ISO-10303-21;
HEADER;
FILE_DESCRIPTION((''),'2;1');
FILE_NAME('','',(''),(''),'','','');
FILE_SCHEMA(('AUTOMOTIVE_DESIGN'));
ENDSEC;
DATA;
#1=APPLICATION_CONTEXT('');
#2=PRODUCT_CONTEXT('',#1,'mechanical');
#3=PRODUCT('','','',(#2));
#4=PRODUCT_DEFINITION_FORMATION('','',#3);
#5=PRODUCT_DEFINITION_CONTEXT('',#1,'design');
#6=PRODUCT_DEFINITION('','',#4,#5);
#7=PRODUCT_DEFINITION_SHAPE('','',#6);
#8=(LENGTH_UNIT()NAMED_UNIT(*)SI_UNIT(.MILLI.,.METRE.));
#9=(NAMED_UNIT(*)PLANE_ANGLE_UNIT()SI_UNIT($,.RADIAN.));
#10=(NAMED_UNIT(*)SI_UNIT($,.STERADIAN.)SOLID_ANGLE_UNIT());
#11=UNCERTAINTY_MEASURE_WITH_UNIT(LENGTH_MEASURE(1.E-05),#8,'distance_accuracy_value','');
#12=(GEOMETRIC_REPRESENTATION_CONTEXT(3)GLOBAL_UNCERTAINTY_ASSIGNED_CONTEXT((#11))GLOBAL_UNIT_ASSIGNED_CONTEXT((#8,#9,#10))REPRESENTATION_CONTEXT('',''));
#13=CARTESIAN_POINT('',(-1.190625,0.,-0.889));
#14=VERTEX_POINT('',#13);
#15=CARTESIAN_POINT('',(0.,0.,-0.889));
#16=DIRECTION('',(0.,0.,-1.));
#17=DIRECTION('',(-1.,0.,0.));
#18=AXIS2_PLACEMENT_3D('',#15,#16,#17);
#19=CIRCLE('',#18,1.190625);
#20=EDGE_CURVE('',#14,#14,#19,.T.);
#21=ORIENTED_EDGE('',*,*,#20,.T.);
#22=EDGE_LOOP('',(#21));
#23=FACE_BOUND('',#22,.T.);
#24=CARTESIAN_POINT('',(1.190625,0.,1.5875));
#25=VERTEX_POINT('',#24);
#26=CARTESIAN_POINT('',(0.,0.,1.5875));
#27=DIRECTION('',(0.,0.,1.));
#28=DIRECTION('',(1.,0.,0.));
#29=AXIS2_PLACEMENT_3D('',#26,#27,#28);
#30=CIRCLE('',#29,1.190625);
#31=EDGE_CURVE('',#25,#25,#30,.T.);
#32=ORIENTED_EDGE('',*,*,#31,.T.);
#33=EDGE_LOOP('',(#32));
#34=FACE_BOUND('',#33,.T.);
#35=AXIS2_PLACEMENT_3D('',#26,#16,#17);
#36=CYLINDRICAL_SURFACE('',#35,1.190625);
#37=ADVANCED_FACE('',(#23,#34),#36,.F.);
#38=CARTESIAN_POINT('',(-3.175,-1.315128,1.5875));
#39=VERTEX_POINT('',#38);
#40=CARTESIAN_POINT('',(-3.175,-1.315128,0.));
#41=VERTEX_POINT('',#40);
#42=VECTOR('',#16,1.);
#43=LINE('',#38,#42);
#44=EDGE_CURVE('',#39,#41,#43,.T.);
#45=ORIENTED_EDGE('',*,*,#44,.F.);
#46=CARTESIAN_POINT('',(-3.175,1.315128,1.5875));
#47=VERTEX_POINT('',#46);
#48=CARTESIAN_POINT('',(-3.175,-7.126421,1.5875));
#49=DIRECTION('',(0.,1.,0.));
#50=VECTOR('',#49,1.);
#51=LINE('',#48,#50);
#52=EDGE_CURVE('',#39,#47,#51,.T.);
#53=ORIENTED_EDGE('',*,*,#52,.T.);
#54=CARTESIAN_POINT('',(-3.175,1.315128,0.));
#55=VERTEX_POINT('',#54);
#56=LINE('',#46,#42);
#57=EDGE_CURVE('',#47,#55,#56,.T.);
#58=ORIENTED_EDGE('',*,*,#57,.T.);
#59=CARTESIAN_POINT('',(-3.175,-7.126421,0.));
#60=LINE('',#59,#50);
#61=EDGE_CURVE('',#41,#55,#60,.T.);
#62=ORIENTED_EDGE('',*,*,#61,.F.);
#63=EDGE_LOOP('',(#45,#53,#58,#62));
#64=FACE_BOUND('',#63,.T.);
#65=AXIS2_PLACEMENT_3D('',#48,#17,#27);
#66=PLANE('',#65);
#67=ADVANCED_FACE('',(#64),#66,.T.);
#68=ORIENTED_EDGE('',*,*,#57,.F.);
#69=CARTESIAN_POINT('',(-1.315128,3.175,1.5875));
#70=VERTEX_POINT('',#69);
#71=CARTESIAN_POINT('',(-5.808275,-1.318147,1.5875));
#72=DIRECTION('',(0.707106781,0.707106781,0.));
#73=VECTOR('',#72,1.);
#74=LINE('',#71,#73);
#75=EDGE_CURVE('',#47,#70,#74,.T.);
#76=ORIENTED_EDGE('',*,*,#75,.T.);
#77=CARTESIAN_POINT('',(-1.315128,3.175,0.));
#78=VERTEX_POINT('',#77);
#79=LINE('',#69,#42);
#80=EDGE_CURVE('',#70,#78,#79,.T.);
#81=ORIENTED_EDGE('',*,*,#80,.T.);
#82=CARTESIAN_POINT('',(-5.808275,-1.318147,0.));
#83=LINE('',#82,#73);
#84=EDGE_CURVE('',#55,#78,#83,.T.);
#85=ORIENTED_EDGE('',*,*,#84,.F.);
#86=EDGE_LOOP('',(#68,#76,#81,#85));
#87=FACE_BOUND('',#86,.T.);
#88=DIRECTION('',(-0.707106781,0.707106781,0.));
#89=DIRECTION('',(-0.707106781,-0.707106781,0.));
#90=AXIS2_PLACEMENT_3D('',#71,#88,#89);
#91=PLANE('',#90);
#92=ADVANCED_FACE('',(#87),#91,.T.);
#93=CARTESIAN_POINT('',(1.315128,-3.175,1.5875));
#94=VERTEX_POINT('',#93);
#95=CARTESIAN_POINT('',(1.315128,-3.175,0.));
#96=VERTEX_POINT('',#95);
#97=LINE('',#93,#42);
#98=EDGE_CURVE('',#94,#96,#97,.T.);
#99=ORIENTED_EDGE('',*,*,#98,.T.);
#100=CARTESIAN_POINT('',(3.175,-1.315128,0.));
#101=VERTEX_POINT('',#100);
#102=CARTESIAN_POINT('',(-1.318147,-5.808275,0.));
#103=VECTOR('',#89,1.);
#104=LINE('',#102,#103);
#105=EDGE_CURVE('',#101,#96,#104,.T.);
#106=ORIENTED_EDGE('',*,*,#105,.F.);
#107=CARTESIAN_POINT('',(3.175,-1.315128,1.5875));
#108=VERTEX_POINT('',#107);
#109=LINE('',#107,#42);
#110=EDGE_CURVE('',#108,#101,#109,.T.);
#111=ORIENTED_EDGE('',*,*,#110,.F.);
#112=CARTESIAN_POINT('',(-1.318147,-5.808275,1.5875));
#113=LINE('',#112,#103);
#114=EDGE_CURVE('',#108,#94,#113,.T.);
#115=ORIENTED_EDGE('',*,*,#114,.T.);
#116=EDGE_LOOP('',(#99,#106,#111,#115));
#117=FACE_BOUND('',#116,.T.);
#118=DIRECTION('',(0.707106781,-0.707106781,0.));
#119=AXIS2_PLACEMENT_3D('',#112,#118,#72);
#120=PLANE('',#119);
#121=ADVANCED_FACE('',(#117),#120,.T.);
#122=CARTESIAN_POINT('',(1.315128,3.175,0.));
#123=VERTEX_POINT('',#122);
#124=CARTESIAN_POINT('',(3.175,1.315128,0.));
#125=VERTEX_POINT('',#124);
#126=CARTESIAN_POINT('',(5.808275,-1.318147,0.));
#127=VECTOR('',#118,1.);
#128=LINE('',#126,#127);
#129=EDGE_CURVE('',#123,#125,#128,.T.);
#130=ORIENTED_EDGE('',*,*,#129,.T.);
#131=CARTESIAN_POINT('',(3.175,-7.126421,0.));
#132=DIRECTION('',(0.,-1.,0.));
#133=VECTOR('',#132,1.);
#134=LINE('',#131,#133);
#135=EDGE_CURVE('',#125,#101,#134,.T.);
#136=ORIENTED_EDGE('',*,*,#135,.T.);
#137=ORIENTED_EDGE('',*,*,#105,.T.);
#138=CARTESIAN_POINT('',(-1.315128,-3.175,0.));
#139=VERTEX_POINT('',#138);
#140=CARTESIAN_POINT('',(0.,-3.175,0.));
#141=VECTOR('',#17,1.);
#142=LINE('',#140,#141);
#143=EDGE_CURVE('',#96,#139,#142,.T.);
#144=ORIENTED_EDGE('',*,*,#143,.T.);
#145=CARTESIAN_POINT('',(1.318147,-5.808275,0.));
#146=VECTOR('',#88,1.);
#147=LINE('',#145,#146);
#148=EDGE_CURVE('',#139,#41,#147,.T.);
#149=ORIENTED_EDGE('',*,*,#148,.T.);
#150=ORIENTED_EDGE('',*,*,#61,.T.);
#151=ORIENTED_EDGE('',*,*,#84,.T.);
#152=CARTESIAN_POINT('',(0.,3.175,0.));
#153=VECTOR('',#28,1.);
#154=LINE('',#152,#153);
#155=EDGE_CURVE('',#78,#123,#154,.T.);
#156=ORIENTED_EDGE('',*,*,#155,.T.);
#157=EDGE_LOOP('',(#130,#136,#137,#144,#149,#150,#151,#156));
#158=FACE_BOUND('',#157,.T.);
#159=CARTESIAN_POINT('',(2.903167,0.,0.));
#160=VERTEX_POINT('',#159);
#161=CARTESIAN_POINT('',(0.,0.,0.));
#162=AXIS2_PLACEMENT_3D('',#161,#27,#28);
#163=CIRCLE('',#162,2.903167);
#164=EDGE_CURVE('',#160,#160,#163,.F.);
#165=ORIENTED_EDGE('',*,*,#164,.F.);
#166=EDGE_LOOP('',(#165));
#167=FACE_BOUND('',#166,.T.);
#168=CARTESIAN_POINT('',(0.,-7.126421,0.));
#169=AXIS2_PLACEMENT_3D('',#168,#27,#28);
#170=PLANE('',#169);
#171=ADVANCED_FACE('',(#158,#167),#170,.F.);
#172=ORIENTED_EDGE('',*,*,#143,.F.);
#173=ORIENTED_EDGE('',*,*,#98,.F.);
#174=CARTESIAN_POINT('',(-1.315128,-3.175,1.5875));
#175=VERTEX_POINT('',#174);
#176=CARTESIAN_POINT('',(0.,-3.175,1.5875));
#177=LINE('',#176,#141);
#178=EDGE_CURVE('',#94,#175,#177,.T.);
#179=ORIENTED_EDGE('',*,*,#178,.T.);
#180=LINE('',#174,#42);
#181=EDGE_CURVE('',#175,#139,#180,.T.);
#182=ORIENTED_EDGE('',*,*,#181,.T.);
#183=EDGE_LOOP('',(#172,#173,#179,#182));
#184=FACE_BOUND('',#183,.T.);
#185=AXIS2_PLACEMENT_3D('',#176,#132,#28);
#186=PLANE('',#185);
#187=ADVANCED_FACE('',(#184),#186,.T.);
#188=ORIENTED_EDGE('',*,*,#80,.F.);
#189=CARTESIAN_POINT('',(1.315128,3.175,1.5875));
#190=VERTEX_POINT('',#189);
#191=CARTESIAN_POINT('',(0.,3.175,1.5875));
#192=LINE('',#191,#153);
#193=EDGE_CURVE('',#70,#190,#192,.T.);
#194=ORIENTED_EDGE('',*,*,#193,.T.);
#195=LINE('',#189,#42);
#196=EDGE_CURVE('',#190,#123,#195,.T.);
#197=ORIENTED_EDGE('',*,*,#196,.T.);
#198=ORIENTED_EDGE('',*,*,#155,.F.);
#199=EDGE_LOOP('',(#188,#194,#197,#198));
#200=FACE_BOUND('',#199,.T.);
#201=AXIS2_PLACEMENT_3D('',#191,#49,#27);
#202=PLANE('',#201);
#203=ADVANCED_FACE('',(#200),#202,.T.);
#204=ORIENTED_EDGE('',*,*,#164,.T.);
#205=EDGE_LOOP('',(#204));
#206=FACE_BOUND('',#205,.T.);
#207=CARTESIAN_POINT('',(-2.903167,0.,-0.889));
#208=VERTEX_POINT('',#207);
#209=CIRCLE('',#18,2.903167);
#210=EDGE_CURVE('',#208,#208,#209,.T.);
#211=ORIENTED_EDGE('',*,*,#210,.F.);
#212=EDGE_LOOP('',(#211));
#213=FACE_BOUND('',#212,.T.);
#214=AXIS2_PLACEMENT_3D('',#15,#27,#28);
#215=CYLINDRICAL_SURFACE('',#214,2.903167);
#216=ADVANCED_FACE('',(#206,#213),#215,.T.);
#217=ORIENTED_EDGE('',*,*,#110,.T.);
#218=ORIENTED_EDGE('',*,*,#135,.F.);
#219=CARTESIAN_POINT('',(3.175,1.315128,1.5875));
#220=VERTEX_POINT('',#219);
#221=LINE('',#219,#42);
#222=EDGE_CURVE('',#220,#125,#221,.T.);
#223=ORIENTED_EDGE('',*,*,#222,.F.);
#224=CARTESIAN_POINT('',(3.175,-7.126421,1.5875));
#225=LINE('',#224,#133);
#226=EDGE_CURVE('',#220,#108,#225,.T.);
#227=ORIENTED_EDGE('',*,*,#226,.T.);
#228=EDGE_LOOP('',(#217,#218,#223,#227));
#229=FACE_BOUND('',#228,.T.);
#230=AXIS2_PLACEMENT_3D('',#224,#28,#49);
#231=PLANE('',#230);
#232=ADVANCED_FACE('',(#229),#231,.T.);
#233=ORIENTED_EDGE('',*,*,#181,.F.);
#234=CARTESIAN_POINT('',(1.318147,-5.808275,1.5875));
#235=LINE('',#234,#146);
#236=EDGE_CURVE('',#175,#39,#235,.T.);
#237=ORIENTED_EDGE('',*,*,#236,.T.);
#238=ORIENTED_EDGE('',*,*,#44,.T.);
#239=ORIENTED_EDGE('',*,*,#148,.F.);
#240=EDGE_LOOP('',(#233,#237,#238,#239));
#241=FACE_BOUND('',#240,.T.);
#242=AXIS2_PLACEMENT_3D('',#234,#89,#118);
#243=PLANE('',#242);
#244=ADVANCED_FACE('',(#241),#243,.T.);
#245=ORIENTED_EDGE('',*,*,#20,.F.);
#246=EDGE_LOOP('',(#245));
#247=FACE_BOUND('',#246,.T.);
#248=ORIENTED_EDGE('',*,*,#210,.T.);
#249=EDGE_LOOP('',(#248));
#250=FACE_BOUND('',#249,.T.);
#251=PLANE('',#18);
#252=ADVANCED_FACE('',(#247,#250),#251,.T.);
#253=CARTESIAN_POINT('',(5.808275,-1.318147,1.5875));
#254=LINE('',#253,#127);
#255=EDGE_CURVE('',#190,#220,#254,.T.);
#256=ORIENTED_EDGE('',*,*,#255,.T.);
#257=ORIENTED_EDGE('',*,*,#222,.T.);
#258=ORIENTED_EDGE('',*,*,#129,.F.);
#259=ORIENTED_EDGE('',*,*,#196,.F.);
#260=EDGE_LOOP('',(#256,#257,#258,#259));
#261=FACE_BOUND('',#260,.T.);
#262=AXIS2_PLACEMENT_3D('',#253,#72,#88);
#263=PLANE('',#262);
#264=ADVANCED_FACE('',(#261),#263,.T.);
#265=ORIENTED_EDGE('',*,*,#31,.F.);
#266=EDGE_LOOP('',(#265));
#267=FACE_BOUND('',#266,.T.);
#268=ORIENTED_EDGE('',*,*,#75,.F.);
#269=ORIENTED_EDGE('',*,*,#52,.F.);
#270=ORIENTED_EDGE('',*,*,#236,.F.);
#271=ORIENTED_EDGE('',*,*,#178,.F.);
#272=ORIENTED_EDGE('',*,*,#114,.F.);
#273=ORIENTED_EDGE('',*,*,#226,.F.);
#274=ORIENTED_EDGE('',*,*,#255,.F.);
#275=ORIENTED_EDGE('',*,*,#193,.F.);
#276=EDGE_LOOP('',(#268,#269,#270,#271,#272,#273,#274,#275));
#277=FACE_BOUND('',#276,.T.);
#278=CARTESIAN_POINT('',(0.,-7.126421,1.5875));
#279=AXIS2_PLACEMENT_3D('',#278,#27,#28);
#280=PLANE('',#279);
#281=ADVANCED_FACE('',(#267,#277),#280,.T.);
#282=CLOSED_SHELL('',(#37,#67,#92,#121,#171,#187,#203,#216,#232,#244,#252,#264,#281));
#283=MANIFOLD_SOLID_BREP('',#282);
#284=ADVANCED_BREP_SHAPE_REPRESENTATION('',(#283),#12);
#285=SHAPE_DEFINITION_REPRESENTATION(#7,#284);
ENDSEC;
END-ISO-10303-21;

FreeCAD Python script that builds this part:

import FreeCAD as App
import Part
import Sketcher
Q = App.Units.Quantity


def add_polygon(sketch, points):
    """Adds a closed chain of lines whose ends are joined by coincident constraints."""
    first, n = sketch.GeometryCount, len(points)
    for a, b in zip(points, points[1:] + points[:1]):
        sketch.addGeometry(Part.LineSegment(App.Vector(*a, 0), App.Vector(*b, 0)), False)
    for i in range(n):
        sketch.addConstraint(Sketcher.Constraint("Coincident", first + i, 2, first + (i + 1) % n, 1))

doc = App.newDocument("Part")
body = doc.addObject("PartDesign::Body", "Body")

sketch1 = doc.addObject("Sketcher::SketchObject", "Sketch")
body.addObject(sketch1)
sketch1.AttachmentSupport = (doc.XY_Plane, [""])
sketch1.MapMode = "FlatFace"
add_polygon(sketch1, [(3.2, 1.3), (2.2, 2.2), (1.3, 3.2), (-1.3, 3.2), (-3.2, 1.3), (-3.2, -1.3), (-2.2, -2.2), (-1.3, -3.2), (1.3, -3.2), (3.2, -1.3)])
sketch1.addGeometry(Part.Circle(App.Vector(0, 0, 0), App.Vector(0, 0, 1), 1.2), False)
sketch1.addConstraint(Sketcher.Constraint("Horizontal", 2))
sketch1.addConstraint(Sketcher.Constraint("Vertical", 4))
sketch1.addConstraint(Sketcher.Constraint("Horizontal", 7))
sketch1.addConstraint(Sketcher.Constraint("Vertical", 9))
sketch1.addConstraint(Sketcher.Constraint("Coincident", 10, 3, -1, 1))
sketch1.addConstraint(Sketcher.Constraint("Symmetric", 0, 2, 5, 2, -1, 1))
sketch1.addConstraint(Sketcher.Constraint("Symmetric", 1, 2, 6, 2, -1, 1))
sketch1.addConstraint(Sketcher.Constraint("Symmetric", 3, 2, 8, 2, -1, 1))
sketch1.addConstraint(Sketcher.Constraint("Parallel", 0, 1))
sketch1.addConstraint(Sketcher.Constraint("Perpendicular", 1, 3))
sketch1.addConstraint(Sketcher.Constraint("Perpendicular", 3, 5))
sketch1.addConstraint(Sketcher.Constraint("Perpendicular", 6, 8))
sketch1.addConstraint(Sketcher.Constraint("Horizontal", 4, 2, 8, 2))
sketch1.addConstraint(Sketcher.Constraint("Vertical", 2, 2, 6, 2))
sketch1.addConstraint(Sketcher.Constraint("Equal", 7, 4))
sketch1.addConstraint(Sketcher.Constraint("Equal", 0, 1))
sketch1.addConstraint(Sketcher.Constraint("Diameter", 10, Q("0.09375 in")))
sketch1.addConstraint(Sketcher.Constraint("DistanceY", 6, 2, 2, 2, Q("0.25 in")))
sketch1.addConstraint(Sketcher.Constraint("Distance", 0, Q("1.315128 mm")))
pad1 = doc.addObject("PartDesign::Pad", "Pad")
body.addObject(pad1)
pad1.Profile = sketch1
pad1.Length = Q("0.0625 in")

sketch2 = doc.addObject("Sketcher::SketchObject", "Sketch001")
body.addObject(sketch2)
sketch2.AttachmentSupport = (doc.XY_Plane, [""])
sketch2.MapMode = "FlatFace"
sketch2.AttachmentOffset = App.Placement(App.Vector(0, 0, -0.035 * 25.4), App.Rotation())
sketch2.addGeometry(Part.Circle(App.Vector(0, 0, 0), App.Vector(0, 0, 1), 2.9), False)
sketch2.addGeometry(Part.Circle(App.Vector(0, 0, 0), App.Vector(0, 0, 1), 1.2), False)
sketch2.addConstraint(Sketcher.Constraint("Coincident", 0, 3, -1, 1))
sketch2.addConstraint(Sketcher.Constraint("Coincident", 1, 3, -1, 1))
sketch2.addConstraint(Sketcher.Constraint("Diameter", 1, Q("0.09375 in")))
sketch2.addConstraint(Sketcher.Constraint("Diameter", 0, Q("5.806334 mm")))
pad2 = doc.addObject("PartDesign::Pad", "Pad001")
body.addObject(pad2)
pad2.Profile = sketch2
pad2.Length = Q("0.035 in")

doc.recompute()
